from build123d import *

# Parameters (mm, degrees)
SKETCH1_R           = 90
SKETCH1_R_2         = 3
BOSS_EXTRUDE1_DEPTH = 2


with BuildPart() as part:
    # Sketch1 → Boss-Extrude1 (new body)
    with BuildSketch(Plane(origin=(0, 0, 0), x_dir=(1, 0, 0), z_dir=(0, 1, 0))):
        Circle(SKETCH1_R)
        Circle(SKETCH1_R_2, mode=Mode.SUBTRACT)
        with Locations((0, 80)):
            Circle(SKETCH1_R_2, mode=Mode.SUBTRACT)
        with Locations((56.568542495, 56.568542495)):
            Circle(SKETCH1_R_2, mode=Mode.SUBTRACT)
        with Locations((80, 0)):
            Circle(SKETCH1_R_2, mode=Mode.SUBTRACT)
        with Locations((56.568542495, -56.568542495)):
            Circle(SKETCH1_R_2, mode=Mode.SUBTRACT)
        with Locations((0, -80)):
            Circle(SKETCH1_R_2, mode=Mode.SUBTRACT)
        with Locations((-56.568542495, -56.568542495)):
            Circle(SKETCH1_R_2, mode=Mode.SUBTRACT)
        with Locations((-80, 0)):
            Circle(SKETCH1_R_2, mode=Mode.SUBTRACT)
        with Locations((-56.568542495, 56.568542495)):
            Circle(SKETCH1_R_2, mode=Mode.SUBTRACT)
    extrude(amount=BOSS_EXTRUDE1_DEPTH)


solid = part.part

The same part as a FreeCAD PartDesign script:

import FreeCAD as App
import Part
import Sketcher

doc = App.newDocument("Part")
body = doc.addObject("PartDesign::Body", "Body")

# Sketch on XZ plane
sketch1 = body.newObject("Sketcher::SketchObject", "Sketch")
sketch1.AttachmentSupport = (doc.getObject("XZ_Plane"), [""])
sketch1.MapMode = "FlatFace"
sketch1.addGeometry([
    Part.Circle(App.Vector(0, 0, 0), App.Vector(0, 0, 1), 90),  # 0
    Part.Circle(App.Vector(-56.568542, 56.568542, 0), App.Vector(0, 0, 1), 3),  # 1
    Part.Circle(App.Vector(0, 80, 0), App.Vector(0, 0, 1), 3),  # 2
    Part.Circle(App.Vector(56.568542, 56.568542, 0), App.Vector(0, 0, 1), 3),  # 3
    Part.Circle(App.Vector(-80, 0, 0), App.Vector(0, 0, 1), 3),  # 4
    Part.Circle(App.Vector(-56.568542, -56.568542, 0), App.Vector(0, 0, 1), 3),  # 5
    Part.Circle(App.Vector(0, 0, 0), App.Vector(0, 0, 1), 3),  # 6
    Part.Circle(App.Vector(80, 0, 0), App.Vector(0, 0, 1), 3),  # 7
    Part.Circle(App.Vector(0, -80, 0), App.Vector(0, 0, 1), 3),  # 8
    Part.Circle(App.Vector(56.568542, -56.568542, 0), App.Vector(0, 0, 1), 3),  # 9
], False)
sketch1.addConstraint([
    Sketcher.Constraint("Coincident", 0, 3, -1, 1),
    Sketcher.Constraint("Coincident", 6, 3, -1, 1),
    Sketcher.Constraint("Equal", 1, 2),
    Sketcher.Constraint("Equal", 2, 3),
    Sketcher.Constraint("Equal", 3, 4),
    Sketcher.Constraint("Equal", 4, 5),
    Sketcher.Constraint("Equal", 5, 6),
    Sketcher.Constraint("Equal", 6, 7),
    Sketcher.Constraint("Equal", 7, 8),
    Sketcher.Constraint("Equal", 8, 9),
    Sketcher.Constraint("Symmetric", 3, 3, 5, 3, -1, 1),
    Sketcher.Constraint("Symmetric", 4, 3, 7, 3, -1, 1),
    Sketcher.Constraint("Symmetric", 2, 3, 8, 3, -1, 1),
    Sketcher.Constraint("Symmetric", 1, 3, 9, 3, -1, 1),
    Sketcher.Constraint("Symmetric", 1, 3, 3, 3, -2),
    Sketcher.Constraint("PointOnObject", 2, 3, -2),
    Sketcher.Constraint("PointOnObject", 4, 3, -1),
    Sketcher.Constraint("Diameter", 0, 180.0),
    Sketcher.Constraint("Diameter", 1, 6.0),
    Sketcher.Constraint("DistanceY", -1, 1, 2, 3, 80.0),
    Sketcher.Constraint("DistanceX", 4, 3, -1, 1, 80.0),
    Sketcher.Constraint("DistanceX", 1, 3, -1, 1, 56.568542),
    Sketcher.Constraint("DistanceY", -1, 1, 1, 3, 56.568542),
])
pad1 = body.newObject("PartDesign::Pad", "Pad")
pad1.Profile = sketch1
pad1.Length = 2
pad1.Reversed = True

doc.recompute()
